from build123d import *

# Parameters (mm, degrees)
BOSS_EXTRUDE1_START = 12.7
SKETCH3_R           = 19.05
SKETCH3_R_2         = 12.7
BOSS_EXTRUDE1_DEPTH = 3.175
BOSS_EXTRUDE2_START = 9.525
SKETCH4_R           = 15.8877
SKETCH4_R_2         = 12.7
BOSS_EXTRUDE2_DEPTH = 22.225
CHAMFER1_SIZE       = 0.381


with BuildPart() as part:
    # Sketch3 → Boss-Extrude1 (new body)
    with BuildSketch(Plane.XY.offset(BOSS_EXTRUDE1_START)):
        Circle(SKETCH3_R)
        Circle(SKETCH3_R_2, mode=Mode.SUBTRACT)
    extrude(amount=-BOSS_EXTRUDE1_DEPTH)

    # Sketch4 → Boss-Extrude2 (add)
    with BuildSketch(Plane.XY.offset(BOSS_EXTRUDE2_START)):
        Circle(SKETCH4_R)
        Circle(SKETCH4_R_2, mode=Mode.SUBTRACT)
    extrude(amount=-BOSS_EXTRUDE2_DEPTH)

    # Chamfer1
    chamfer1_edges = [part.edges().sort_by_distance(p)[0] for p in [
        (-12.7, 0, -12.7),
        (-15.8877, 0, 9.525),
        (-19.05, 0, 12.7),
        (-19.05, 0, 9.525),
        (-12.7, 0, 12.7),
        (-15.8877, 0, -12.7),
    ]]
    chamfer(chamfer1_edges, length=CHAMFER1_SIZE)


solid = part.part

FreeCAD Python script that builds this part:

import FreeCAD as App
import Part
import Sketcher
from FreeCAD import Vector
Q = App.Units.Quantity


def edges_at(feature, points):
    """Names of the edges that pass closest to the given points."""
    edges = feature.Shape.Edges
    near = lambda p: min(range(len(edges)), key=lambda i: edges[i].distToShape(Part.Vertex(*p))[0])
    return sorted({f"Edge{near(p) + 1}" for p in points})

doc = App.newDocument("Part")
params = doc.addObject("Spreadsheet::Sheet", "Params")
for row, (alias, value) in enumerate([
    ("sketch1_diameter", "1 in"),
    ("sketch1_diameter2", "1.5 in"),
    ("pad1_length", "0.125 in"),
    ("sketch2_diameter", "1 in"),
    ("sketch2_diameter2", "1.251 in"),
    ("pad2_length", "0.875 in"),
    ("chamfer_size", "0.015 in"),
], start=1):
    params.set(f"A{row}", alias)
    params.set(f"B{row}", "=" + value)
    params.setAlias(f"B{row}", alias)

body = doc.addObject("PartDesign::Body", "Body")

sketch1 = body.newObject("Sketcher::SketchObject", "Sketch")
sketch1.AttachmentSupport = (doc.getObject("XY_Plane"), [""])
sketch1.MapMode = "FlatFace"
sketch1.AttachmentOffset = App.Placement(Vector(0, 0, 0.5 * 25.4), App.Rotation())
sketch1.addGeometry(Part.Circle(Vector(0, 0, 0), Vector(0, 0, 1), 19), False)
sketch1.addGeometry(Part.Circle(Vector(0, 0, 0), Vector(0, 0, 1), 13), False)
sketch1.addConstraint(Sketcher.Constraint("Coincident", 0, 3, -1, 1))
sketch1.addConstraint(Sketcher.Constraint("Coincident", 1, 3, -1, 1))
sketch1.addConstraint(Sketcher.Constraint("Diameter", 1, Q("1 in")))
sketch1.addConstraint(Sketcher.Constraint("Diameter", 0, Q("1.5 in")))
sketch1.setExpression("Constraints[2]", "Params.sketch1_diameter")
sketch1.setExpression("Constraints[3]", "Params.sketch1_diameter2")
pad1 = body.newObject("PartDesign::Pad", "Pad")
pad1.Profile = sketch1
pad1.setExpression("Length", "Params.pad1_length")
pad1.Reversed = True

sketch2 = body.newObject("Sketcher::SketchObject", "Sketch001")
sketch2.AttachmentSupport = (doc.getObject("XY_Plane"), [""])
sketch2.MapMode = "FlatFace"
sketch2.AttachmentOffset = App.Placement(Vector(0, 0, 0.375 * 25.4), App.Rotation())
sketch2.addGeometry(Part.Circle(Vector(0, 0, 0), Vector(0, 0, 1), 16), False)
sketch2.addGeometry(Part.Circle(Vector(0, 0, 0), Vector(0, 0, 1), 13), False)
sketch2.addConstraint(Sketcher.Constraint("Coincident", 0, 3, -1, 1))
sketch2.addConstraint(Sketcher.Constraint("Coincident", 1, 3, -1, 1))
sketch2.addConstraint(Sketcher.Constraint("Diameter", 1, Q("1 in")))
sketch2.addConstraint(Sketcher.Constraint("Diameter", 0, Q("1.251 in")))
sketch2.setExpression("Constraints[2]", "Params.sketch2_diameter")
sketch2.setExpression("Constraints[3]", "Params.sketch2_diameter2")
pad2 = body.newObject("PartDesign::Pad", "Pad001")
pad2.Profile = sketch2
pad2.setExpression("Length", "Params.pad2_length")
pad2.Reversed = True
doc.recompute()

chamfer = body.newObject("PartDesign::Chamfer", "Chamfer")
chamfer.Base = (pad2, edges_at(pad2, [
    (-12.7, 0, -12.7),
    (-15.888, 0, 9.525),
    (-19.05, 0, 12.7),
    (-19.05, 0, 9.525),
    (-12.7, 0, 12.7),
    (-15.888, 0, -12.7),
]))
chamfer.setExpression("Size", "Params.chamfer_size")

doc.recompute()
